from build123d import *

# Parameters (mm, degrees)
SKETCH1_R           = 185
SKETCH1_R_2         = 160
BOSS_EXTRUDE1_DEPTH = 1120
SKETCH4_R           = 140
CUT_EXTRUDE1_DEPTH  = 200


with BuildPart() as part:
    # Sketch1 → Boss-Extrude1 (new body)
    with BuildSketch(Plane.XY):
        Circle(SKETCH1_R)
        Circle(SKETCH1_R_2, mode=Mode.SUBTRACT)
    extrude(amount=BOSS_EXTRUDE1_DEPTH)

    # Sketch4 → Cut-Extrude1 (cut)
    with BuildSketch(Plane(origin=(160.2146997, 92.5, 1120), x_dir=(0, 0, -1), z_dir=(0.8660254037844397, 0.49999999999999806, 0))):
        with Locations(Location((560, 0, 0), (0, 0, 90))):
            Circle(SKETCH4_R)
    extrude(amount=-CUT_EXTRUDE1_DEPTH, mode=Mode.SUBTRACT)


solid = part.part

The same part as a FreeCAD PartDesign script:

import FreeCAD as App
import Part
import Sketcher
Q = App.Units.Quantity

doc = App.newDocument("Part")
params = doc.addObject("Spreadsheet::Sheet", "Params")
for row, (alias, value) in enumerate([
    ("sketch1_diameter", "370 mm"),
    ("sketch1_diameter2", "320 mm"),
    ("pad1_length", "1120 mm"),
    ("sketch2_diameter", "280 mm"),
    ("pocket1_length", "200 mm"),
], start=1):
    params.set(f"A{row}", alias)
    params.set(f"B{row}", "=" + value)
    params.setAlias(f"B{row}", alias)

body = doc.addObject("PartDesign::Body", "Body")

# Sketch on XY plane
sketch1 = doc.addObject("Sketcher::SketchObject", "Sketch")
body.addObject(sketch1)
sketch1.AttachmentSupport = (doc.XY_Plane, [""])
sketch1.MapMode = "FlatFace"
sketch1.addGeometry([
    Part.Circle(App.Vector(0, 0, 0), App.Vector(0, 0, 1), 185),
    Part.Circle(App.Vector(0, 0, 0), App.Vector(0, 0, 1), 160),
], False)
sketch1.addConstraint([
    Sketcher.Constraint("Coincident", 0, 3, -1, 1),
    Sketcher.Constraint("Coincident", 1, 3, -1, 1),
    Sketcher.Constraint("Diameter", 0, Q("370 mm")),
    Sketcher.Constraint("Diameter", 1, Q("320 mm")),
])
sketch1.setExpression("Constraints[2]", "Params.sketch1_diameter")
sketch1.setExpression("Constraints[3]", "Params.sketch1_diameter2")
pad1 = doc.addObject("PartDesign::Pad", "Pad")
body.addObject(pad1)
pad1.Profile = sketch1
pad1.setExpression("Length", "Params.pad1_length")

# Sketch on an angled plane
sketch2 = doc.addObject("Sketcher::SketchObject", "Sketch001")
body.addObject(sketch2)
sketch2.Placement = App.Placement(App.Vector(160.2147, 92.5, 1120), App.Rotation(App.Vector(0, 0, -1), App.Vector(-0.5, 0.866025404, 0), App.Vector(0.866025404, 0.5, 0), "ZXY"))
sketch2.addGeometry(Part.Circle(App.Vector(560, 0, 0), App.Vector(0, 0, 1), 140), False)
sketch2.addConstraint([
    Sketcher.Constraint("PointOnObject", 0, 3, -1),
    Sketcher.Constraint("Diameter", 0, Q("280 mm")),
    Sketcher.Constraint("DistanceX", -1, 1, 0, 3, Q("560 mm")),
])
sketch2.setExpression("Constraints[1]", "Params.sketch2_diameter")
pocket1 = doc.addObject("PartDesign::Pocket", "Pocket")
body.addObject(pocket1)
pocket1.Profile = sketch2
pocket1.setExpression("Length", "Params.pocket1_length")

doc.recompute()
